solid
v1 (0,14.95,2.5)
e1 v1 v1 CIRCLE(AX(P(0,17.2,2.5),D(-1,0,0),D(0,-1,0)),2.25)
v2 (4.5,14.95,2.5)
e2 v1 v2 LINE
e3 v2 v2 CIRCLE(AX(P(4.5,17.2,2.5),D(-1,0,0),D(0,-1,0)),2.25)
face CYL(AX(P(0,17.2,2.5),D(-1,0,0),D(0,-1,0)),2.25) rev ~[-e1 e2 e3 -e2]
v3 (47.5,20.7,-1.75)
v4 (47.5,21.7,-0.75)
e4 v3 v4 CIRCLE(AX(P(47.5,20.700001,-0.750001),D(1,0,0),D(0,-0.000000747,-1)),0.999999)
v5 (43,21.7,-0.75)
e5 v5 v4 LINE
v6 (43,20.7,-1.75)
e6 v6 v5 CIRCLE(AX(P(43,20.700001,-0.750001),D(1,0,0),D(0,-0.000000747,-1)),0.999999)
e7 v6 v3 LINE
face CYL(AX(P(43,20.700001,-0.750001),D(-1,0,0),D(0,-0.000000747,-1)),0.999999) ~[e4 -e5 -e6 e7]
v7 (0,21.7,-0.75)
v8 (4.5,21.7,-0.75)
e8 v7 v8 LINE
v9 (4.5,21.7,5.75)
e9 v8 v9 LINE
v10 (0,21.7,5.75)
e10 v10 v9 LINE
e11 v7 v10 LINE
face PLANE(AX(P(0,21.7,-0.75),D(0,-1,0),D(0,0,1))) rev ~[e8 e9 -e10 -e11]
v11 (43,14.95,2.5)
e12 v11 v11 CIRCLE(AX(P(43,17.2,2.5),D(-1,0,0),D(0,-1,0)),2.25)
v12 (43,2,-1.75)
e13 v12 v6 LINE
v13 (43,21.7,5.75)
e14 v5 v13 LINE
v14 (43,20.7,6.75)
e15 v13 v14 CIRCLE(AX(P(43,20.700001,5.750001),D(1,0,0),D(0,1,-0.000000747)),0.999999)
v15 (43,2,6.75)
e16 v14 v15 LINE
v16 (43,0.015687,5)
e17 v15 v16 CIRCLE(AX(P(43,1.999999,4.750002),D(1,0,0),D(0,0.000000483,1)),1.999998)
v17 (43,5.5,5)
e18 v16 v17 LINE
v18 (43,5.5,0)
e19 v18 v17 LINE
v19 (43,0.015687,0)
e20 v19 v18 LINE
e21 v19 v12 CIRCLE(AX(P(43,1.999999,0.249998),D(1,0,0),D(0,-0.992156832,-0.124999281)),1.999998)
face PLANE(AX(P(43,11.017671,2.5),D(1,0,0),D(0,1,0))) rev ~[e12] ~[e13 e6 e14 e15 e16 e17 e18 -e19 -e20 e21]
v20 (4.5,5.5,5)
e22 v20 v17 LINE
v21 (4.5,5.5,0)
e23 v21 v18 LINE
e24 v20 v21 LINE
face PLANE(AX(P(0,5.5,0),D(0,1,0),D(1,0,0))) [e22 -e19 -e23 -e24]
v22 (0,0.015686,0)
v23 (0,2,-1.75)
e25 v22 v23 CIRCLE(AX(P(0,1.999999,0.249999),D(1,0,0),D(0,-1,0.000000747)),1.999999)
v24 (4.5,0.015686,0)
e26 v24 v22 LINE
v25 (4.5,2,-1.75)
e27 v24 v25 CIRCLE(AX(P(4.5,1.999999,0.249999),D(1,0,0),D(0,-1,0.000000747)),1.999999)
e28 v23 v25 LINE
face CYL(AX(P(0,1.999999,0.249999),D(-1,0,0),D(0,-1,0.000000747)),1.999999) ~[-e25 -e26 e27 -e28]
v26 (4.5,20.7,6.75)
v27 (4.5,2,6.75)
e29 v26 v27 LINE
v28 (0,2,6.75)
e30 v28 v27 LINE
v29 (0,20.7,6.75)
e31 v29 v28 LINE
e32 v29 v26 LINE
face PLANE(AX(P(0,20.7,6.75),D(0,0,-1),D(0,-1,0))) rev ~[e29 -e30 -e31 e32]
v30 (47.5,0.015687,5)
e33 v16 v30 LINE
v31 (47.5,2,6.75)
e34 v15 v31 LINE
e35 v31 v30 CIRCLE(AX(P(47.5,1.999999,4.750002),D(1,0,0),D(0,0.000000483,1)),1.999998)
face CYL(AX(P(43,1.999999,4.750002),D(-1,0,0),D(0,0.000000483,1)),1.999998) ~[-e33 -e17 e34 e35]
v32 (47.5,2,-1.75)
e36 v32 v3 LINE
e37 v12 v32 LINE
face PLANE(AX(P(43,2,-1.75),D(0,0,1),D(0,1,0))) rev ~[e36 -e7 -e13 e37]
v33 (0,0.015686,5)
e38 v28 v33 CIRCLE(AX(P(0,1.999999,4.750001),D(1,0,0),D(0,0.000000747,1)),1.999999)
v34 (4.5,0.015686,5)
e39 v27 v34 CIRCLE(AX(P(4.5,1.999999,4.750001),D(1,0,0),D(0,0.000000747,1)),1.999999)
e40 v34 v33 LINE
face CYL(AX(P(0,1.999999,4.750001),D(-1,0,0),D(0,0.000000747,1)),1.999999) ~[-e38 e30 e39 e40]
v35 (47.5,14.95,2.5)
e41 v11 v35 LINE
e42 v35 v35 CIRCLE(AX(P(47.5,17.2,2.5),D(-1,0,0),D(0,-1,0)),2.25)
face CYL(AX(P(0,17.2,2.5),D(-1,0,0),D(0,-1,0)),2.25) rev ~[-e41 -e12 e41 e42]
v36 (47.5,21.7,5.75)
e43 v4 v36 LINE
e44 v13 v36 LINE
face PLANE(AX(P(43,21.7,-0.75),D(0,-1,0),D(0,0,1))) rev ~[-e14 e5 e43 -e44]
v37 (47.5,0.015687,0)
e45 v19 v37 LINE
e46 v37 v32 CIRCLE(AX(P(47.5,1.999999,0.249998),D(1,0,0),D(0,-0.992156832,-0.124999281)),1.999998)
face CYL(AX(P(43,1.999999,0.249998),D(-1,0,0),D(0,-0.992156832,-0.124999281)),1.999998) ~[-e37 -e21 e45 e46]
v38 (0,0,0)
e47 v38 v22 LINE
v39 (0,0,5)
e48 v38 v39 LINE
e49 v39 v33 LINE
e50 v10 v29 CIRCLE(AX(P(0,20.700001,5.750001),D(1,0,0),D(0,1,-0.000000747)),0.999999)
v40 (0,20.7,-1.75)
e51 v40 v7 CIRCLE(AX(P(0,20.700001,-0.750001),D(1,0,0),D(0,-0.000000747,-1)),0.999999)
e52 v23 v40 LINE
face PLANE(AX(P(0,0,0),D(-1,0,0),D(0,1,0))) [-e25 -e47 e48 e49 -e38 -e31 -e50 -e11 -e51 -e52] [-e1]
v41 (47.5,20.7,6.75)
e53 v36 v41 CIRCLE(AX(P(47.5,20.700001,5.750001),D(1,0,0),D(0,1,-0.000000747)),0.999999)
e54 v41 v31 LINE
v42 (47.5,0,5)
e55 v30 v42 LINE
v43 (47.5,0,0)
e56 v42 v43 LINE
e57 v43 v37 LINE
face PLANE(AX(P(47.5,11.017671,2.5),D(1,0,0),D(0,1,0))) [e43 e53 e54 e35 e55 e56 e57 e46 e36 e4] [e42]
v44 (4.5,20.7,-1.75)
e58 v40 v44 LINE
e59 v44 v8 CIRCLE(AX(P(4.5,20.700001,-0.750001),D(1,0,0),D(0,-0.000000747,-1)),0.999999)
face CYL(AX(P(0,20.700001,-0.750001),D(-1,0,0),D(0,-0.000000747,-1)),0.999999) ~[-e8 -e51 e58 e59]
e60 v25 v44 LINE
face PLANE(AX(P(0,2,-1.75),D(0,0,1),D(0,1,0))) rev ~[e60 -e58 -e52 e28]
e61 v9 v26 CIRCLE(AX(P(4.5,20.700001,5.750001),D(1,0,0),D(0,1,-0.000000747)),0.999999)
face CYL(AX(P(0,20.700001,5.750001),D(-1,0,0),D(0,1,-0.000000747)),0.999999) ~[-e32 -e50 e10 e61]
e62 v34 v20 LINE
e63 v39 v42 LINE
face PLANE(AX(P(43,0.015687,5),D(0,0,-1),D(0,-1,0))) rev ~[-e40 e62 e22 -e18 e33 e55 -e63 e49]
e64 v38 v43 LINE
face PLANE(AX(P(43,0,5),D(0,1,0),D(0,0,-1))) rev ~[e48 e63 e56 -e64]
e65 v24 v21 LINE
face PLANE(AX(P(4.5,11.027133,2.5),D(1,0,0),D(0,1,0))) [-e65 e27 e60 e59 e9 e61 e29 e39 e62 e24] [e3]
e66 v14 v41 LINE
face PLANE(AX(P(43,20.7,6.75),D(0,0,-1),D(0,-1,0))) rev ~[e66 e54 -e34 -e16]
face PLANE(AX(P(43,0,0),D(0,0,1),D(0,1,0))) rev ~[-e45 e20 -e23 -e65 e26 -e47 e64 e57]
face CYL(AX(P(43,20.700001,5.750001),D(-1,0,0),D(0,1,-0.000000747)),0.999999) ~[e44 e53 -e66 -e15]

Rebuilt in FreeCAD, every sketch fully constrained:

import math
import FreeCAD as App
import Part
import Sketcher

V = App.Vector
Q = App.Units.Quantity

doc = App.newDocument("Part")
params = doc.addObject("Spreadsheet::Sheet", "Params")
for row, (alias, value) in enumerate([
    ("sketch1_width", "43 mm"),
    ("sketch1_height", "5.5 mm"),
    ("pad1_length", "5 mm"),
    ("sketch2_radius", "1.999999 mm"),
    ("sketch2_radius2", "0.999999 mm"),
    ("sketch2_width", "18.7 mm"),
    ("sketch2_height", "6.5 mm"),
    ("pad2_length", "4.5 mm"),
    ("sketch3_radius", "1.999998 mm"),
    ("sketch3_radius2", "0.999999 mm"),
    ("sketch3_height", "5 mm"),
    ("sketch3_width", "18.7 mm"),
    ("sketch3_height2", "6.5 mm"),
    ("pad3_length", "4.5 mm"),
    ("sketch4_diameter", "4.5 mm"),
], start=1):
    params.set(f"A{row}", alias)
    params.set(f"B{row}", "=" + value)
    params.setAlias(f"B{row}", alias)

body = doc.addObject("PartDesign::Body", "Body")

# Sketch on XY plane
sketch1 = body.newObject("Sketcher::SketchObject", "Sketch")
sketch1.AttachmentSupport = (doc.getObject("XY_Plane"), [""])
sketch1.MapMode = "FlatFace"
sketch1.addGeometry(Part.LineSegment(V(0, 6, 0), V(0, 0, 0)), False)
sketch1.addGeometry(Part.LineSegment(V(0, 0, 0), V(43, 0, 0)), False)
sketch1.addGeometry(Part.LineSegment(V(43, 0, 0), V(43, 6, 0)), False)
sketch1.addGeometry(Part.LineSegment(V(43, 6, 0), V(0, 6, 0)), False)
sketch1.addConstraint(Sketcher.Constraint("Coincident", 0, 2, 1, 1))
sketch1.addConstraint(Sketcher.Constraint("Coincident", 1, 2, 2, 1))
sketch1.addConstraint(Sketcher.Constraint("Coincident", 2, 2, 3, 1))
sketch1.addConstraint(Sketcher.Constraint("Coincident", 3, 2, 0, 1))
sketch1.addConstraint(Sketcher.Constraint("Vertical", 0))
sketch1.addConstraint(Sketcher.Constraint("Horizontal", 1))
sketch1.addConstraint(Sketcher.Constraint("Vertical", 2))
sketch1.addConstraint(Sketcher.Constraint("Horizontal", 3))
sketch1.addConstraint(Sketcher.Constraint("Coincident", 0, 2, -1, 1))
sketch1.addConstraint(Sketcher.Constraint("DistanceX", 1, 1, 1, 2, Q("43 mm")))
sketch1.addConstraint(Sketcher.Constraint("DistanceY", 0, 2, 0, 1, Q("5.5 mm")))
sketch1.setExpression("Constraints[9]", "Params.sketch1_width")
sketch1.setExpression("Constraints[10]", "Params.sketch1_height")
pad1 = body.newObject("PartDesign::Pad", "Pad")
pad1.Profile = sketch1
pad1.setExpression("Length", "Params.pad1_length")

# Sketch on YZ plane
sketch2 = body.newObject("Sketcher::SketchObject", "Sketch001")
sketch2.AttachmentSupport = (doc.getObject("YZ_Plane"), [""])
sketch2.MapMode = "FlatFace"
sketch2.addGeometry(Part.ArcOfCircle(Part.Circle(V(2, 0.2, 0), V(0, 0, 1), 2), math.radians(180), math.radians(270)), False)
sketch2.addGeometry(Part.LineSegment(V(2, -1.8, 0), V(20.7, -1.8, 0)), False)
sketch2.addGeometry(Part.ArcOfCircle(Part.Circle(V(20.7, -0.8, 0), V(0, 0, 1), 1), math.radians(-90), math.radians(0)), False)
sketch2.addGeometry(Part.LineSegment(V(21.7, -0.8, 0), V(21.7, 5.8, 0)), False)
sketch2.addGeometry(Part.ArcOfCircle(Part.Circle(V(20.7, 5.8, 0), V(0, 0, 1), 1), math.radians(0), math.radians(90)), False)
sketch2.addGeometry(Part.LineSegment(V(20.7, 6.8, 0), V(2, 6.8, 0)), False)
sketch2.addGeometry(Part.ArcOfCircle(Part.Circle(V(2, 4.8, 0), V(0, 0, 1), 2), math.radians(90), math.radians(180)), False)
sketch2.addGeometry(Part.LineSegment(V(0, 4.8, 0), V(0, 0.2, 0)), False)
sketch2.addConstraint(Sketcher.Constraint("Tangent", 0, 2, 1, 1))
sketch2.addConstraint(Sketcher.Constraint("Tangent", 1, 2, 2, 1))
sketch2.addConstraint(Sketcher.Constraint("Tangent", 2, 2, 3, 1))
sketch2.addConstraint(Sketcher.Constraint("Tangent", 3, 2, 4, 1))
sketch2.addConstraint(Sketcher.Constraint("Tangent", 4, 2, 5, 1))
sketch2.addConstraint(Sketcher.Constraint("Tangent", 5, 2, 6, 1))
sketch2.addConstraint(Sketcher.Constraint("Tangent", 6, 2, 7, 1))
sketch2.addConstraint(Sketcher.Constraint("Tangent", 7, 2, 0, 1))
sketch2.addConstraint(Sketcher.Constraint("Horizontal", 1))
sketch2.addConstraint(Sketcher.Constraint("Vertical", 3))
sketch2.addConstraint(Sketcher.Constraint("Horizontal", 5))
sketch2.addConstraint(Sketcher.Constraint("Vertical", 7))
sketch2.addConstraint(Sketcher.Constraint("Equal", 2, 4))
sketch2.addConstraint(Sketcher.Constraint("Equal", 0, 6))
sketch2.addConstraint(Sketcher.Constraint("PointOnObject", 6, 2, -2))
sketch2.addConstraint(Sketcher.Constraint("Radius", 0, Q("1.999999 mm")))
sketch2.addConstraint(Sketcher.Constraint("Radius", 2, Q("0.999999 mm")))
sketch2.addConstraint(Sketcher.Constraint("DistanceX", 1, 1, 1, 2, Q("18.7 mm")))
sketch2.addConstraint(Sketcher.Constraint("DistanceY", 3, 1, 3, 2, Q("6.5 mm")))
sketch2.addConstraint(Sketcher.Constraint("DistanceY", -1, 1, 0, 3, Q("0.249999 mm")))
sketch2.setExpression("Constraints[15]", "Params.sketch2_radius")
sketch2.setExpression("Constraints[16]", "Params.sketch2_radius2")
sketch2.setExpression("Constraints[17]", "Params.sketch2_width")
sketch2.setExpression("Constraints[18]", "Params.sketch2_height")
pad2 = body.newObject("PartDesign::Pad", "Pad001")
pad2.Profile = sketch2
pad2.setExpression("Length", "Params.pad2_length")

# Sketch on YZ plane
sketch3 = body.newObject("Sketcher::SketchObject", "Sketch002")
sketch3.AttachmentSupport = (doc.getObject("YZ_Plane"), [""])
sketch3.MapMode = "FlatFace"
sketch3.AttachmentOffset = App.Placement(V(0, 0, 43), App.Rotation())
sketch3.addGeometry(Part.LineSegment(V(0.016, 5, 0), V(0, 5, 0)), False)
sketch3.addGeometry(Part.LineSegment(V(0, 5, 0), V(0, 0, 0)), False)
sketch3.addGeometry(Part.LineSegment(V(0, 0, 0), V(0.016, 0, 0)), False)
sketch3.addGeometry(Part.ArcOfCircle(Part.Circle(V(2, 0.25, 0), V(0, 0, 1), 2), math.radians(-173), math.radians(-90)), False)
sketch3.addGeometry(Part.LineSegment(V(2, -1.75, 0), V(20.7, -1.75, 0)), False)
sketch3.addGeometry(Part.ArcOfCircle(Part.Circle(V(20.7, -0.75, 0), V(0, 0, 1), 1), math.radians(-90), math.radians(0)), False)
sketch3.addGeometry(Part.LineSegment(V(21.7, -0.75, 0), V(21.7, 5.75, 0)), False)
sketch3.addGeometry(Part.ArcOfCircle(Part.Circle(V(20.7, 5.75, 0), V(0, 0, 1), 1), math.radians(0), math.radians(90)), False)
sketch3.addGeometry(Part.LineSegment(V(20.7, 6.75, 0), V(2, 6.75, 0)), False)
sketch3.addGeometry(Part.ArcOfCircle(Part.Circle(V(2, 4.75, 0), V(0, 0, 1), 2), math.radians(90), math.radians(173)), False)
sketch3.addConstraint(Sketcher.Constraint("Coincident", 0, 2, 1, 1))
sketch3.addConstraint(Sketcher.Constraint("Coincident", 1, 2, 2, 1))
sketch3.addConstraint(Sketcher.Constraint("Coincident", 2, 2, 3, 1))
sketch3.addConstraint(Sketcher.Constraint("Tangent", 3, 2, 4, 1))
sketch3.addConstraint(Sketcher.Constraint("Tangent", 4, 2, 5, 1))
sketch3.addConstraint(Sketcher.Constraint("Tangent", 5, 2, 6, 1))
sketch3.addConstraint(Sketcher.Constraint("Tangent", 6, 2, 7, 1))
sketch3.addConstraint(Sketcher.Constraint("Tangent", 7, 2, 8, 1))
sketch3.addConstraint(Sketcher.Constraint("Tangent", 8, 2, 9, 1))
sketch3.addConstraint(Sketcher.Constraint("Coincident", 9, 2, 0, 1))
sketch3.addConstraint(Sketcher.Constraint("Horizontal", 0))
sketch3.addConstraint(Sketcher.Constraint("Vertical", 1))
sketch3.addConstraint(Sketcher.Constraint("Horizontal", 2))
sketch3.addConstraint(Sketcher.Constraint("Horizontal", 4))
sketch3.addConstraint(Sketcher.Constraint("Vertical", 6))
sketch3.addConstraint(Sketcher.Constraint("Horizontal", 8))
sketch3.addConstraint(Sketcher.Constraint("Coincident", 1, 2, -1, 1))
sketch3.addConstraint(Sketcher.Constraint("Equal", 5, 7))
sketch3.addConstraint(Sketcher.Constraint("Equal", 3, 9))
sketch3.addConstraint(Sketcher.Constraint("Vertical", 3, 3, 9, 3))
sketch3.addConstraint(Sketcher.Constraint("Vertical", 2, 2, 9, 2))
sketch3.addConstraint(Sketcher.Constraint("Radius", 3, Q("1.999998 mm")))
sketch3.addConstraint(Sketcher.Constraint("Radius", 5, Q("0.999999 mm")))
sketch3.addConstraint(Sketcher.Constraint("DistanceY", 1, 2, 1, 1, Q("5 mm")))
sketch3.addConstraint(Sketcher.Constraint("DistanceX", 4, 1, 4, 2, Q("18.7 mm")))
sketch3.addConstraint(Sketcher.Constraint("DistanceY", 6, 1, 6, 2, Q("6.5 mm")))
sketch3.addConstraint(Sketcher.Constraint("DistanceX", -1, 1, 3, 3, Q("1.999999 mm")))
sketch3.setExpression("Constraints[21]", "Params.sketch3_radius")
sketch3.setExpression("Constraints[22]", "Params.sketch3_radius2")
sketch3.setExpression("Constraints[23]", "Params.sketch3_height")
sketch3.setExpression("Constraints[24]", "Params.sketch3_width")
sketch3.setExpression("Constraints[25]", "Params.sketch3_height2")
pad3 = body.newObject("PartDesign::Pad", "Pad002")
pad3.Profile = sketch3
pad3.setExpression("Length", "Params.pad3_length")

# Sketch on YZ plane
sketch4 = body.newObject("Sketcher::SketchObject", "Sketch003")
sketch4.AttachmentSupport = (doc.getObject("YZ_Plane"), [""])
sketch4.MapMode = "FlatFace"
sketch4.addGeometry(Part.Circle(V(17.2, 2.5, 0), V(0, 0, 1), 2.2), False)
sketch4.addConstraint(Sketcher.Constraint("Diameter", 0, Q("4.5 mm")))
sketch4.addConstraint(Sketcher.Constraint("DistanceX", -1, 1, 0, 3, Q("17.2 mm")))
sketch4.addConstraint(Sketcher.Constraint("DistanceY", -1, 1, 0, 3, Q("2.5 mm")))
sketch4.setExpression("Constraints[0]", "Params.sketch4_diameter")
pocket1 = body.newObject("PartDesign::Pocket", "Pocket")
pocket1.Profile = sketch4
pocket1.Type = "ThroughAll"
pocket1.Reversed = True

doc.recompute()
